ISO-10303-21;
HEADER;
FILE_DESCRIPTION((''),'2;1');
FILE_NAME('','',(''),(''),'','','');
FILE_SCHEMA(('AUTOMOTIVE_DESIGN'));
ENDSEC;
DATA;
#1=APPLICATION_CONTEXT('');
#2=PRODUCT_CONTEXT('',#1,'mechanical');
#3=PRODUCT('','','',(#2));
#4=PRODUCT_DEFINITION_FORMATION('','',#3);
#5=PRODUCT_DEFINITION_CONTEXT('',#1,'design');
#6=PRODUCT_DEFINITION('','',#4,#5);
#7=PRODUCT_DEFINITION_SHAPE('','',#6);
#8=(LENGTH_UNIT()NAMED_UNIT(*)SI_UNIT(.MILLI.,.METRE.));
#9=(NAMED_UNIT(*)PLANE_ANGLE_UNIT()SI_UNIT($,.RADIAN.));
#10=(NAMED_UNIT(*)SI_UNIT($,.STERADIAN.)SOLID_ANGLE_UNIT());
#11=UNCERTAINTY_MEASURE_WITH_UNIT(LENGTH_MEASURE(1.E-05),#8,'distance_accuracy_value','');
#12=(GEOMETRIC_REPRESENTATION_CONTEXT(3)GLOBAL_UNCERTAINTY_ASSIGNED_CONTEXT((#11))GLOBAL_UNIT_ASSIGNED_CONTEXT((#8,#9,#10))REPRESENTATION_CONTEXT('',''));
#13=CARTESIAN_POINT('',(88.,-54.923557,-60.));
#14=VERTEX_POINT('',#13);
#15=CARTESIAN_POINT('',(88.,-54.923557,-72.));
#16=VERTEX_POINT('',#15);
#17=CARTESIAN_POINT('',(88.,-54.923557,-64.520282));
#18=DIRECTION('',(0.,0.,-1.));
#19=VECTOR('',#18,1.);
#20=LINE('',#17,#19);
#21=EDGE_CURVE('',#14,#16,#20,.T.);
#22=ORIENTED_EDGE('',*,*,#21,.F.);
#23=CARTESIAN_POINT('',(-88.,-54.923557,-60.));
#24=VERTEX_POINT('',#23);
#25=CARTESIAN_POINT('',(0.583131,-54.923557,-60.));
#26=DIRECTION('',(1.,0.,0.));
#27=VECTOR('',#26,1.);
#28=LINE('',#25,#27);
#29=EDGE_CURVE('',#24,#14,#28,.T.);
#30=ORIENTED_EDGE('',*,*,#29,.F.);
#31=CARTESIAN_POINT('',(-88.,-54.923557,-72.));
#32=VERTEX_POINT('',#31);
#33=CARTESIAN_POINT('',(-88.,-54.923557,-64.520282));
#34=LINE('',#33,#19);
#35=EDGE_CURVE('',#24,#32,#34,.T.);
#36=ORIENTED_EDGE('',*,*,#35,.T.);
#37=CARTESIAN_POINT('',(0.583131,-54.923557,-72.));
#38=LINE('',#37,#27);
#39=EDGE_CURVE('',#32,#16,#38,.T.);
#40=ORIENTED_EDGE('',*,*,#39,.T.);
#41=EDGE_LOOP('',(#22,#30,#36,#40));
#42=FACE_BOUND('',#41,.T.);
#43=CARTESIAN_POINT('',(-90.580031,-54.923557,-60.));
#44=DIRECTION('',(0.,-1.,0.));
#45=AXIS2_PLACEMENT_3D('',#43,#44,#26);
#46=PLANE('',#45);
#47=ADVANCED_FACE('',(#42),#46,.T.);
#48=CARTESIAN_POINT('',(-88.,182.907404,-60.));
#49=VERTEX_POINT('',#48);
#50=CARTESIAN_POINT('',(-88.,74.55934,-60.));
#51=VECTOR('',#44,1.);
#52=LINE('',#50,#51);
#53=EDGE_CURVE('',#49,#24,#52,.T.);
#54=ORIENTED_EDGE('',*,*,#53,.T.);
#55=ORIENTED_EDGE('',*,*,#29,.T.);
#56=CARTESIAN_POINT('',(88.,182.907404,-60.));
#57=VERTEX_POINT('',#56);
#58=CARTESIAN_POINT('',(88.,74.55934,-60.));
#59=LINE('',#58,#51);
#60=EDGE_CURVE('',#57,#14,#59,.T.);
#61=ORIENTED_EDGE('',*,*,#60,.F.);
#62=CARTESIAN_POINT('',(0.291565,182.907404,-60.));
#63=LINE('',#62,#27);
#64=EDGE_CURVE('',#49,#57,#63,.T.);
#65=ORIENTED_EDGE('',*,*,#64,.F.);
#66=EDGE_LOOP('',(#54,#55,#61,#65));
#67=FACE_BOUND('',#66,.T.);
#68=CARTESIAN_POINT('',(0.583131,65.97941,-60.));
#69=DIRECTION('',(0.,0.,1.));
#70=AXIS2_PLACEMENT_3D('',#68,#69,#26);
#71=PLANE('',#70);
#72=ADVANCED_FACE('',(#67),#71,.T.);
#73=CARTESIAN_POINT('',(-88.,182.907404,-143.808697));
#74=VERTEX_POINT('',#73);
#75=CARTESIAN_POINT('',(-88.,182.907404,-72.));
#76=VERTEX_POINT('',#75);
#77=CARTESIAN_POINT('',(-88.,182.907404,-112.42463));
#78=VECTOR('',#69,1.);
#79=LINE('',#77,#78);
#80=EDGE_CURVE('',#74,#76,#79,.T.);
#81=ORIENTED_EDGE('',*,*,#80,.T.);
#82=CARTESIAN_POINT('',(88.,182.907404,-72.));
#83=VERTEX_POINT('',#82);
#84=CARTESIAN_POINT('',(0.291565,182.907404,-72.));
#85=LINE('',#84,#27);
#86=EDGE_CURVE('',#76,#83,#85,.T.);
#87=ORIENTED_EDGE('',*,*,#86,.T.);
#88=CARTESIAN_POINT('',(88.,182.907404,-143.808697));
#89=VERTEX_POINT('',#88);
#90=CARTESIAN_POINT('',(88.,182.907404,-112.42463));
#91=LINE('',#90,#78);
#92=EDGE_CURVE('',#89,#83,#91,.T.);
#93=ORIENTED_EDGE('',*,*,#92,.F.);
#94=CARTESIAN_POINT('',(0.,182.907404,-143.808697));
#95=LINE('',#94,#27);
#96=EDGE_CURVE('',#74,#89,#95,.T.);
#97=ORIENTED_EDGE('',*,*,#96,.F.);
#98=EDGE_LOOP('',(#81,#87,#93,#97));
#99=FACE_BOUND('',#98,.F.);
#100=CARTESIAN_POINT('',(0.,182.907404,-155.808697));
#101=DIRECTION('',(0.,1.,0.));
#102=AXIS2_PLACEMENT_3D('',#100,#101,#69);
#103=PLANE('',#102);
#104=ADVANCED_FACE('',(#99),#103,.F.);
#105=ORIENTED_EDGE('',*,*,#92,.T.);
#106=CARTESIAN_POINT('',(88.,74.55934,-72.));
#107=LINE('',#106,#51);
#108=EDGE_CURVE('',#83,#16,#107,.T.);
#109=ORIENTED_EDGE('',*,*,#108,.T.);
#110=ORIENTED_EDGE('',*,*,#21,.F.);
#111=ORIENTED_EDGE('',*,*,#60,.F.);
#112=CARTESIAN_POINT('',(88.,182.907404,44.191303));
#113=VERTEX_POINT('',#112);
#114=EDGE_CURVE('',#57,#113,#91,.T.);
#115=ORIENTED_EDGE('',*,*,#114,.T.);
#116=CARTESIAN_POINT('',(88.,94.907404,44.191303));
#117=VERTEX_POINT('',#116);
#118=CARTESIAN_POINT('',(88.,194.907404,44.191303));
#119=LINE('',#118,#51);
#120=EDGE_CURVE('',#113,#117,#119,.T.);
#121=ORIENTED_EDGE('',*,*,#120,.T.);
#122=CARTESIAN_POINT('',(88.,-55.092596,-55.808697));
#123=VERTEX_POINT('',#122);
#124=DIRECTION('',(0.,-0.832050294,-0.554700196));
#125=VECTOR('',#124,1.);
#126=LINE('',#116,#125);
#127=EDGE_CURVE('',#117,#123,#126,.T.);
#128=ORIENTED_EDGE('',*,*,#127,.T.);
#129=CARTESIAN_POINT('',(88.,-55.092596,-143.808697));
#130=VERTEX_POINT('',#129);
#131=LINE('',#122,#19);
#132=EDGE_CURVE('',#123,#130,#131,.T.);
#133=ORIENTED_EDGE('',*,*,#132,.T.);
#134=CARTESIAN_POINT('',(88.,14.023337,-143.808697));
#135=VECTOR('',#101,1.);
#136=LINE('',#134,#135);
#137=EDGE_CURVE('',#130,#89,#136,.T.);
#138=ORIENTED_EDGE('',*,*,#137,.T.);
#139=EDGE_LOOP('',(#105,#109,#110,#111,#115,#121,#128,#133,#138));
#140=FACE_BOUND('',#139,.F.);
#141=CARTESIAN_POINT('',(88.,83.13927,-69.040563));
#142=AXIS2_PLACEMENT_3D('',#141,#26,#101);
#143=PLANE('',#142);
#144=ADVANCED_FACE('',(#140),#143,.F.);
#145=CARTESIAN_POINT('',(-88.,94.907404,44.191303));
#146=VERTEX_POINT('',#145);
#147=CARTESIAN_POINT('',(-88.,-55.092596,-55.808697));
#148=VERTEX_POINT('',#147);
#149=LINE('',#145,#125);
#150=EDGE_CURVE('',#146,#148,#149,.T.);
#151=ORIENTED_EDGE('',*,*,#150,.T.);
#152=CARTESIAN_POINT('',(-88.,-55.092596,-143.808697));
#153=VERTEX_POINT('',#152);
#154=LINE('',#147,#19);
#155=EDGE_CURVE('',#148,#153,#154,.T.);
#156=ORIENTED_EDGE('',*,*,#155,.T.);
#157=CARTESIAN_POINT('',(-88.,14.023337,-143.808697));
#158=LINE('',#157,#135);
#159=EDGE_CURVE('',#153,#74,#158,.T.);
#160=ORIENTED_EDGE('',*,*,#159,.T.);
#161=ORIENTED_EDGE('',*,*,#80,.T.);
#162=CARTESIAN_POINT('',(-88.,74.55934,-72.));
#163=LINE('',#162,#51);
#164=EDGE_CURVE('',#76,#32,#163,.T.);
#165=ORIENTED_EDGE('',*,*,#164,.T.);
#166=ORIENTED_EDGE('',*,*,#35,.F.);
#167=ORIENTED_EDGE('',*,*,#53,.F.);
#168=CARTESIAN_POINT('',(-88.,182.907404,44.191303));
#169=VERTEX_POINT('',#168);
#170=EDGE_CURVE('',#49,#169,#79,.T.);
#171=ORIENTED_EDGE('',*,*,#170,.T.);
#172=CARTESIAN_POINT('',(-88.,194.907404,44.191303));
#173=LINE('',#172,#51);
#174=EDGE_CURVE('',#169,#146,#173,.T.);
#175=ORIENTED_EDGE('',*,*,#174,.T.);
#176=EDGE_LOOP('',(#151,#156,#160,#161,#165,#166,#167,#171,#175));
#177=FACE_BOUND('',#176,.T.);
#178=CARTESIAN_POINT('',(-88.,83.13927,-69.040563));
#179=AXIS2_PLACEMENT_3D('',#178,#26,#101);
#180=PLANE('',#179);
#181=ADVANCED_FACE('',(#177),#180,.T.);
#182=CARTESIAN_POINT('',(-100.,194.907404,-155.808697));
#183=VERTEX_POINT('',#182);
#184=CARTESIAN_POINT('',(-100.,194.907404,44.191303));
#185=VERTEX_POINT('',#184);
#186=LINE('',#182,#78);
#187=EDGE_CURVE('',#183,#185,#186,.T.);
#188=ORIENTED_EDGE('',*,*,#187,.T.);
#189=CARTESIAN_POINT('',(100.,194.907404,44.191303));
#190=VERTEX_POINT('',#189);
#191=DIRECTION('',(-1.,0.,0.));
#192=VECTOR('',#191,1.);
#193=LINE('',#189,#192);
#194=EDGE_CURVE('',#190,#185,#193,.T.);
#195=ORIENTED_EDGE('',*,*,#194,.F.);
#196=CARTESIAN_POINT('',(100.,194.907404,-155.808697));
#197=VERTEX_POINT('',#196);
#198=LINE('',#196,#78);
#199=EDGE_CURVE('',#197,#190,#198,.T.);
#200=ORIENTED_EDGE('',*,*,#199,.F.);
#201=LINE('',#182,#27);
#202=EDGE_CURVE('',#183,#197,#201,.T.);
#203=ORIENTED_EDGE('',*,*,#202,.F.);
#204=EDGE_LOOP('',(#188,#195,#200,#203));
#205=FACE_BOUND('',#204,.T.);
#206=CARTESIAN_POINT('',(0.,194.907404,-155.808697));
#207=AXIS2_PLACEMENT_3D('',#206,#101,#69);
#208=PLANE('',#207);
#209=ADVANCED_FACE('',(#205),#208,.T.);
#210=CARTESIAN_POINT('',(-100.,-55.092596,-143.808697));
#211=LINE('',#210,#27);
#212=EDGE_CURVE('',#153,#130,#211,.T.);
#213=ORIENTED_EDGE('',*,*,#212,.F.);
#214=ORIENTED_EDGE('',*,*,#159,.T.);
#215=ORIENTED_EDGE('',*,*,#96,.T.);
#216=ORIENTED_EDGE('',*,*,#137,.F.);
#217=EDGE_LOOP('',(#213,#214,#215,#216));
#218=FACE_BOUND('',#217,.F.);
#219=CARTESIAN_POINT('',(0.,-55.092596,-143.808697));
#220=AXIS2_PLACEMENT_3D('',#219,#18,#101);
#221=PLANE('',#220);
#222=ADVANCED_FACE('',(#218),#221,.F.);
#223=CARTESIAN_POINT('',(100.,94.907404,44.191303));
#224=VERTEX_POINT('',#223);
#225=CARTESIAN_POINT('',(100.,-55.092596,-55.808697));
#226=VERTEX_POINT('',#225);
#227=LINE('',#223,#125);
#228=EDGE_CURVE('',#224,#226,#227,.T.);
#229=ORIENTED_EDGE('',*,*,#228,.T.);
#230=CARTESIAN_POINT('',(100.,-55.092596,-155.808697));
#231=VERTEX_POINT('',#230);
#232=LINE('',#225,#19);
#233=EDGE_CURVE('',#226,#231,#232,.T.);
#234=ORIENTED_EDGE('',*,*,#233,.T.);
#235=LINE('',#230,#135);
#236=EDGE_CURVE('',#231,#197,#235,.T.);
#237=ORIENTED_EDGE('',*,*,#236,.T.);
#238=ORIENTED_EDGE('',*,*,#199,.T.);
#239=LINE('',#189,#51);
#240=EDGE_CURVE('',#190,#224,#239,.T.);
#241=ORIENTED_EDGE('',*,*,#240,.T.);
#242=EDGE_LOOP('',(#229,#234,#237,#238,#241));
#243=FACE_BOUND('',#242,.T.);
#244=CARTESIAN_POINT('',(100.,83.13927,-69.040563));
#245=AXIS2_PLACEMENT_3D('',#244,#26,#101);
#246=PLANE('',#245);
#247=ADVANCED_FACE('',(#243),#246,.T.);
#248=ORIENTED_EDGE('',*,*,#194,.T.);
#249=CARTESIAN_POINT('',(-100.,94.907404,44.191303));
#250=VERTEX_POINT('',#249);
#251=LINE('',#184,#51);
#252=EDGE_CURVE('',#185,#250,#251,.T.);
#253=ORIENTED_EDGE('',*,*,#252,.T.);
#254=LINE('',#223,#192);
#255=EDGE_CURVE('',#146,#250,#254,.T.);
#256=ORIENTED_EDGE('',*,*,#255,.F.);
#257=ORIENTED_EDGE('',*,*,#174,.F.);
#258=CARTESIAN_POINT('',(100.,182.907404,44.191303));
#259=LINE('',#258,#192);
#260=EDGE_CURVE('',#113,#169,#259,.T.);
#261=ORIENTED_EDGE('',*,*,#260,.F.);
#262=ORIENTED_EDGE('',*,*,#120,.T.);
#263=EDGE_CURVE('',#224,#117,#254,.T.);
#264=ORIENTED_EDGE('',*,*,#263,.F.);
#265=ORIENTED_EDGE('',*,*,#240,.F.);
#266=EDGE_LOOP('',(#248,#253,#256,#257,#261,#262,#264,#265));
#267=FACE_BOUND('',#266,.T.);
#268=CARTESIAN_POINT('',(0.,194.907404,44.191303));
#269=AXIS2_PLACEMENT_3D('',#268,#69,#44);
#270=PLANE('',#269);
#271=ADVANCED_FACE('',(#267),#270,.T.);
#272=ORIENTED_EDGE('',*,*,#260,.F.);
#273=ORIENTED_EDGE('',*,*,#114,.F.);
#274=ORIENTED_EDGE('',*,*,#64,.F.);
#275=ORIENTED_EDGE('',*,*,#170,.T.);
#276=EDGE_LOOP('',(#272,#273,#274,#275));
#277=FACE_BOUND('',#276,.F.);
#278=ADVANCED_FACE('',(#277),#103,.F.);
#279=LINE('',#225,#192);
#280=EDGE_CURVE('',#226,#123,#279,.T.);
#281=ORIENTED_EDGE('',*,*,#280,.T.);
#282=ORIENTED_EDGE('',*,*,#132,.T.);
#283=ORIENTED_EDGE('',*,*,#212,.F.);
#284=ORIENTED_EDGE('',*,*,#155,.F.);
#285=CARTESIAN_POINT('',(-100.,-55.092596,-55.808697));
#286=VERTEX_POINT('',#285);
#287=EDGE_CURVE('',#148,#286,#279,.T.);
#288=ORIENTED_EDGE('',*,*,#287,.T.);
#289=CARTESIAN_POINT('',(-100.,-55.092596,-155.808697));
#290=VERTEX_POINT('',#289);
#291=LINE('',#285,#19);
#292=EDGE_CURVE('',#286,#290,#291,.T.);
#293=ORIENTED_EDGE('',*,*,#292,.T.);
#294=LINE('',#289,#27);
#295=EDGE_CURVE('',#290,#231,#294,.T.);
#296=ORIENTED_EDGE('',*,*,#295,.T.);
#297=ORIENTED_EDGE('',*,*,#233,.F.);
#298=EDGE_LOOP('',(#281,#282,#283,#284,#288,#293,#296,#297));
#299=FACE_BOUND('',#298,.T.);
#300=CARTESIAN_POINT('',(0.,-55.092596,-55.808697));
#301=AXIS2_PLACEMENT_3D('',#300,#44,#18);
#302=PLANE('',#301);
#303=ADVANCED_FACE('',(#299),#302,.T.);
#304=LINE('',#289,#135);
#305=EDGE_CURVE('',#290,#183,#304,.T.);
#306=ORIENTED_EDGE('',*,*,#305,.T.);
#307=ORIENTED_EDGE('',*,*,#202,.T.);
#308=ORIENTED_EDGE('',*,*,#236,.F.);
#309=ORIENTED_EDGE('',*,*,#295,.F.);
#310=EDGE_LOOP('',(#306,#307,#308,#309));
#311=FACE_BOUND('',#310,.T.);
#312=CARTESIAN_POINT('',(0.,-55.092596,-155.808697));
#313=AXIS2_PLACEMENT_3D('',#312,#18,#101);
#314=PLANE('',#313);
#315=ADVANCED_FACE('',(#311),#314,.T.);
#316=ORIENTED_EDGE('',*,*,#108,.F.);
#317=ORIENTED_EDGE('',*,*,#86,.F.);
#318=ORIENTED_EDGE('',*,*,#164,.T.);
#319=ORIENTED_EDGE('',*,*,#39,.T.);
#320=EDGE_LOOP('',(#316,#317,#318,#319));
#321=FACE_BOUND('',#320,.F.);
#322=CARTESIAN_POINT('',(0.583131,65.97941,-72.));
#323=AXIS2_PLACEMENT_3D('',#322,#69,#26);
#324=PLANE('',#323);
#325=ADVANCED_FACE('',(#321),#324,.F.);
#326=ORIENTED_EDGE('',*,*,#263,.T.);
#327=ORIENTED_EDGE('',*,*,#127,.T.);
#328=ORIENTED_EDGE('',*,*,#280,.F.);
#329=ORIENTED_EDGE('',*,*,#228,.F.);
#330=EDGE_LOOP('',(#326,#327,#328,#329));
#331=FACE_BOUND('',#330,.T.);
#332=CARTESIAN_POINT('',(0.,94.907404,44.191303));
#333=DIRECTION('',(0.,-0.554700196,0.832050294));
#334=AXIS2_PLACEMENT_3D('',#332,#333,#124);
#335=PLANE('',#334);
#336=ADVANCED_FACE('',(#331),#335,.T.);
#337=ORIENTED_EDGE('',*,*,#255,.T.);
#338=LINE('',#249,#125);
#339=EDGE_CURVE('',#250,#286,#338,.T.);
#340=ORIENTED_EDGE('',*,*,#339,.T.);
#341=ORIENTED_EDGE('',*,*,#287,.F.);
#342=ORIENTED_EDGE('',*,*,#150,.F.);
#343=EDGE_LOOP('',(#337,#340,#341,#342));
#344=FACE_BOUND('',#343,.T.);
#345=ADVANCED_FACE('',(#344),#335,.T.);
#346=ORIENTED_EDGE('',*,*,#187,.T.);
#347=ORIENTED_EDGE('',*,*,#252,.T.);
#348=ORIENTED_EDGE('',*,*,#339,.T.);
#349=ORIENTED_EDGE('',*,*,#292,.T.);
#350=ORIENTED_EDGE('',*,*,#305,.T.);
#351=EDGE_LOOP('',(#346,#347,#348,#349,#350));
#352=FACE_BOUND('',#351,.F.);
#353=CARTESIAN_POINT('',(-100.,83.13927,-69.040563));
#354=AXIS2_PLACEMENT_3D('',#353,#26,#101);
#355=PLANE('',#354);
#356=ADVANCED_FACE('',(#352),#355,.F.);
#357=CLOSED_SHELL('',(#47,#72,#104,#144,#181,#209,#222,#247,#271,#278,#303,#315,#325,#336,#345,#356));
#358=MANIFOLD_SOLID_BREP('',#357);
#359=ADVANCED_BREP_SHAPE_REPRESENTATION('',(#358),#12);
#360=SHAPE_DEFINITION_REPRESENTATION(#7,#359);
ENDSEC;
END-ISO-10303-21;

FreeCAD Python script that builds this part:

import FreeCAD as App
import Part
import Sketcher

V = App.Vector


def faces_at(feature, points):
    """Names of the faces that lie closest to the given points."""
    faces = feature.Shape.Faces
    near = lambda p: min(range(len(faces)), key=lambda i: faces[i].distToShape(Part.Vertex(*p))[0])
    return sorted({f"Face{near(p) + 1}" for p in points})


def add_polygon(sketch, points):
    """Adds a closed chain of lines whose ends are joined by coincident constraints."""
    first, n = sketch.GeometryCount, len(points)
    for a, b in zip(points, points[1:] + points[:1]):
        sketch.addGeometry(Part.LineSegment(App.Vector(*a, 0), App.Vector(*b, 0)), False)
    for i in range(n):
        sketch.addConstraint(Sketcher.Constraint("Coincident", first + i, 2, first + (i + 1) % n, 1))

doc = App.newDocument("Part")
body = doc.addObject("PartDesign::Body", "Body")

# Sketch on YZ plane
sketch1 = body.newObject("Sketcher::SketchObject", "Sketch")
sketch1.AttachmentSupport = (doc.getObject("YZ_Plane"), [""])
sketch1.MapMode = "FlatFace"
add_polygon(sketch1, [(-55.092596, -55.808697), (-55.092596, -155.808697), (194.907404, -155.808697), (194.907404, 44.191303), (94.907404, 44.191303)])  # lines 0-4
sketch1.addConstraint([
    Sketcher.Constraint("Vertical", 0),
    Sketcher.Constraint("Horizontal", 1),
    Sketcher.Constraint("Vertical", 2),
    Sketcher.Constraint("Horizontal", 3),
    Sketcher.Constraint("Equal", 3, 0),
    Sketcher.Constraint("DistanceX", 1, 1, 1, 2, 250.0),
    Sketcher.Constraint("DistanceX", 3, 2, 3, 1, 100.0),
    Sketcher.Constraint("DistanceY", 2, 1, 2, 2, 200.0),
    Sketcher.Constraint("DistanceX", 0, 2, -1, 1, 55.092596),
    Sketcher.Constraint("DistanceY", 0, 2, -1, 1, 155.808697),
])
pad1 = body.newObject("PartDesign::Pad", "Pad")
pad1.Profile = sketch1
pad1.Length = 200
pad1.Midplane = True
doc.recompute()

thickness = body.newObject("PartDesign::Thickness", "Thickness")
thickness.Base = (pad1, faces_at(pad1, [(0, 144.907, 44.191), (0, 19.907, -5.809), (0, -55.093, -105.809)]))
thickness.Value = 12
thickness.Reversed = True
thickness.Join = "Arc"

# Sketch on XY plane
sketch2 = body.newObject("Sketcher::SketchObject", "Sketch001")
sketch2.AttachmentSupport = (doc.getObject("XY_Plane"), [""])
sketch2.MapMode = "FlatFace"
sketch2.AttachmentOffset = App.Placement(V(0, 0, -60), App.Rotation())
add_polygon(sketch2, [(-90.580031, 186.882377), (-90.580031, -54.923557), (91.746293, -54.923557), (91.746293, 186.882377)])  # lines 0-3
sketch2.addConstraint([
    Sketcher.Constraint("Vertical", 0),
    Sketcher.Constraint("Horizontal", 1),
    Sketcher.Constraint("Vertical", 2),
    Sketcher.Constraint("Horizontal", 3),
    Sketcher.Constraint("DistanceX", 1, 1, 1, 2, 182.326324),
    Sketcher.Constraint("DistanceY", 0, 2, 0, 1, 241.805934),
    Sketcher.Constraint("DistanceX", 0, 2, -1, 1, 90.580031),
    Sketcher.Constraint("DistanceY", 0, 2, -1, 1, 54.923557),
])
pad2 = body.newObject("PartDesign::Pad", "Pad001")
pad2.Profile = sketch2
pad2.Length = 12
pad2.Reversed = True

doc.recompute()
